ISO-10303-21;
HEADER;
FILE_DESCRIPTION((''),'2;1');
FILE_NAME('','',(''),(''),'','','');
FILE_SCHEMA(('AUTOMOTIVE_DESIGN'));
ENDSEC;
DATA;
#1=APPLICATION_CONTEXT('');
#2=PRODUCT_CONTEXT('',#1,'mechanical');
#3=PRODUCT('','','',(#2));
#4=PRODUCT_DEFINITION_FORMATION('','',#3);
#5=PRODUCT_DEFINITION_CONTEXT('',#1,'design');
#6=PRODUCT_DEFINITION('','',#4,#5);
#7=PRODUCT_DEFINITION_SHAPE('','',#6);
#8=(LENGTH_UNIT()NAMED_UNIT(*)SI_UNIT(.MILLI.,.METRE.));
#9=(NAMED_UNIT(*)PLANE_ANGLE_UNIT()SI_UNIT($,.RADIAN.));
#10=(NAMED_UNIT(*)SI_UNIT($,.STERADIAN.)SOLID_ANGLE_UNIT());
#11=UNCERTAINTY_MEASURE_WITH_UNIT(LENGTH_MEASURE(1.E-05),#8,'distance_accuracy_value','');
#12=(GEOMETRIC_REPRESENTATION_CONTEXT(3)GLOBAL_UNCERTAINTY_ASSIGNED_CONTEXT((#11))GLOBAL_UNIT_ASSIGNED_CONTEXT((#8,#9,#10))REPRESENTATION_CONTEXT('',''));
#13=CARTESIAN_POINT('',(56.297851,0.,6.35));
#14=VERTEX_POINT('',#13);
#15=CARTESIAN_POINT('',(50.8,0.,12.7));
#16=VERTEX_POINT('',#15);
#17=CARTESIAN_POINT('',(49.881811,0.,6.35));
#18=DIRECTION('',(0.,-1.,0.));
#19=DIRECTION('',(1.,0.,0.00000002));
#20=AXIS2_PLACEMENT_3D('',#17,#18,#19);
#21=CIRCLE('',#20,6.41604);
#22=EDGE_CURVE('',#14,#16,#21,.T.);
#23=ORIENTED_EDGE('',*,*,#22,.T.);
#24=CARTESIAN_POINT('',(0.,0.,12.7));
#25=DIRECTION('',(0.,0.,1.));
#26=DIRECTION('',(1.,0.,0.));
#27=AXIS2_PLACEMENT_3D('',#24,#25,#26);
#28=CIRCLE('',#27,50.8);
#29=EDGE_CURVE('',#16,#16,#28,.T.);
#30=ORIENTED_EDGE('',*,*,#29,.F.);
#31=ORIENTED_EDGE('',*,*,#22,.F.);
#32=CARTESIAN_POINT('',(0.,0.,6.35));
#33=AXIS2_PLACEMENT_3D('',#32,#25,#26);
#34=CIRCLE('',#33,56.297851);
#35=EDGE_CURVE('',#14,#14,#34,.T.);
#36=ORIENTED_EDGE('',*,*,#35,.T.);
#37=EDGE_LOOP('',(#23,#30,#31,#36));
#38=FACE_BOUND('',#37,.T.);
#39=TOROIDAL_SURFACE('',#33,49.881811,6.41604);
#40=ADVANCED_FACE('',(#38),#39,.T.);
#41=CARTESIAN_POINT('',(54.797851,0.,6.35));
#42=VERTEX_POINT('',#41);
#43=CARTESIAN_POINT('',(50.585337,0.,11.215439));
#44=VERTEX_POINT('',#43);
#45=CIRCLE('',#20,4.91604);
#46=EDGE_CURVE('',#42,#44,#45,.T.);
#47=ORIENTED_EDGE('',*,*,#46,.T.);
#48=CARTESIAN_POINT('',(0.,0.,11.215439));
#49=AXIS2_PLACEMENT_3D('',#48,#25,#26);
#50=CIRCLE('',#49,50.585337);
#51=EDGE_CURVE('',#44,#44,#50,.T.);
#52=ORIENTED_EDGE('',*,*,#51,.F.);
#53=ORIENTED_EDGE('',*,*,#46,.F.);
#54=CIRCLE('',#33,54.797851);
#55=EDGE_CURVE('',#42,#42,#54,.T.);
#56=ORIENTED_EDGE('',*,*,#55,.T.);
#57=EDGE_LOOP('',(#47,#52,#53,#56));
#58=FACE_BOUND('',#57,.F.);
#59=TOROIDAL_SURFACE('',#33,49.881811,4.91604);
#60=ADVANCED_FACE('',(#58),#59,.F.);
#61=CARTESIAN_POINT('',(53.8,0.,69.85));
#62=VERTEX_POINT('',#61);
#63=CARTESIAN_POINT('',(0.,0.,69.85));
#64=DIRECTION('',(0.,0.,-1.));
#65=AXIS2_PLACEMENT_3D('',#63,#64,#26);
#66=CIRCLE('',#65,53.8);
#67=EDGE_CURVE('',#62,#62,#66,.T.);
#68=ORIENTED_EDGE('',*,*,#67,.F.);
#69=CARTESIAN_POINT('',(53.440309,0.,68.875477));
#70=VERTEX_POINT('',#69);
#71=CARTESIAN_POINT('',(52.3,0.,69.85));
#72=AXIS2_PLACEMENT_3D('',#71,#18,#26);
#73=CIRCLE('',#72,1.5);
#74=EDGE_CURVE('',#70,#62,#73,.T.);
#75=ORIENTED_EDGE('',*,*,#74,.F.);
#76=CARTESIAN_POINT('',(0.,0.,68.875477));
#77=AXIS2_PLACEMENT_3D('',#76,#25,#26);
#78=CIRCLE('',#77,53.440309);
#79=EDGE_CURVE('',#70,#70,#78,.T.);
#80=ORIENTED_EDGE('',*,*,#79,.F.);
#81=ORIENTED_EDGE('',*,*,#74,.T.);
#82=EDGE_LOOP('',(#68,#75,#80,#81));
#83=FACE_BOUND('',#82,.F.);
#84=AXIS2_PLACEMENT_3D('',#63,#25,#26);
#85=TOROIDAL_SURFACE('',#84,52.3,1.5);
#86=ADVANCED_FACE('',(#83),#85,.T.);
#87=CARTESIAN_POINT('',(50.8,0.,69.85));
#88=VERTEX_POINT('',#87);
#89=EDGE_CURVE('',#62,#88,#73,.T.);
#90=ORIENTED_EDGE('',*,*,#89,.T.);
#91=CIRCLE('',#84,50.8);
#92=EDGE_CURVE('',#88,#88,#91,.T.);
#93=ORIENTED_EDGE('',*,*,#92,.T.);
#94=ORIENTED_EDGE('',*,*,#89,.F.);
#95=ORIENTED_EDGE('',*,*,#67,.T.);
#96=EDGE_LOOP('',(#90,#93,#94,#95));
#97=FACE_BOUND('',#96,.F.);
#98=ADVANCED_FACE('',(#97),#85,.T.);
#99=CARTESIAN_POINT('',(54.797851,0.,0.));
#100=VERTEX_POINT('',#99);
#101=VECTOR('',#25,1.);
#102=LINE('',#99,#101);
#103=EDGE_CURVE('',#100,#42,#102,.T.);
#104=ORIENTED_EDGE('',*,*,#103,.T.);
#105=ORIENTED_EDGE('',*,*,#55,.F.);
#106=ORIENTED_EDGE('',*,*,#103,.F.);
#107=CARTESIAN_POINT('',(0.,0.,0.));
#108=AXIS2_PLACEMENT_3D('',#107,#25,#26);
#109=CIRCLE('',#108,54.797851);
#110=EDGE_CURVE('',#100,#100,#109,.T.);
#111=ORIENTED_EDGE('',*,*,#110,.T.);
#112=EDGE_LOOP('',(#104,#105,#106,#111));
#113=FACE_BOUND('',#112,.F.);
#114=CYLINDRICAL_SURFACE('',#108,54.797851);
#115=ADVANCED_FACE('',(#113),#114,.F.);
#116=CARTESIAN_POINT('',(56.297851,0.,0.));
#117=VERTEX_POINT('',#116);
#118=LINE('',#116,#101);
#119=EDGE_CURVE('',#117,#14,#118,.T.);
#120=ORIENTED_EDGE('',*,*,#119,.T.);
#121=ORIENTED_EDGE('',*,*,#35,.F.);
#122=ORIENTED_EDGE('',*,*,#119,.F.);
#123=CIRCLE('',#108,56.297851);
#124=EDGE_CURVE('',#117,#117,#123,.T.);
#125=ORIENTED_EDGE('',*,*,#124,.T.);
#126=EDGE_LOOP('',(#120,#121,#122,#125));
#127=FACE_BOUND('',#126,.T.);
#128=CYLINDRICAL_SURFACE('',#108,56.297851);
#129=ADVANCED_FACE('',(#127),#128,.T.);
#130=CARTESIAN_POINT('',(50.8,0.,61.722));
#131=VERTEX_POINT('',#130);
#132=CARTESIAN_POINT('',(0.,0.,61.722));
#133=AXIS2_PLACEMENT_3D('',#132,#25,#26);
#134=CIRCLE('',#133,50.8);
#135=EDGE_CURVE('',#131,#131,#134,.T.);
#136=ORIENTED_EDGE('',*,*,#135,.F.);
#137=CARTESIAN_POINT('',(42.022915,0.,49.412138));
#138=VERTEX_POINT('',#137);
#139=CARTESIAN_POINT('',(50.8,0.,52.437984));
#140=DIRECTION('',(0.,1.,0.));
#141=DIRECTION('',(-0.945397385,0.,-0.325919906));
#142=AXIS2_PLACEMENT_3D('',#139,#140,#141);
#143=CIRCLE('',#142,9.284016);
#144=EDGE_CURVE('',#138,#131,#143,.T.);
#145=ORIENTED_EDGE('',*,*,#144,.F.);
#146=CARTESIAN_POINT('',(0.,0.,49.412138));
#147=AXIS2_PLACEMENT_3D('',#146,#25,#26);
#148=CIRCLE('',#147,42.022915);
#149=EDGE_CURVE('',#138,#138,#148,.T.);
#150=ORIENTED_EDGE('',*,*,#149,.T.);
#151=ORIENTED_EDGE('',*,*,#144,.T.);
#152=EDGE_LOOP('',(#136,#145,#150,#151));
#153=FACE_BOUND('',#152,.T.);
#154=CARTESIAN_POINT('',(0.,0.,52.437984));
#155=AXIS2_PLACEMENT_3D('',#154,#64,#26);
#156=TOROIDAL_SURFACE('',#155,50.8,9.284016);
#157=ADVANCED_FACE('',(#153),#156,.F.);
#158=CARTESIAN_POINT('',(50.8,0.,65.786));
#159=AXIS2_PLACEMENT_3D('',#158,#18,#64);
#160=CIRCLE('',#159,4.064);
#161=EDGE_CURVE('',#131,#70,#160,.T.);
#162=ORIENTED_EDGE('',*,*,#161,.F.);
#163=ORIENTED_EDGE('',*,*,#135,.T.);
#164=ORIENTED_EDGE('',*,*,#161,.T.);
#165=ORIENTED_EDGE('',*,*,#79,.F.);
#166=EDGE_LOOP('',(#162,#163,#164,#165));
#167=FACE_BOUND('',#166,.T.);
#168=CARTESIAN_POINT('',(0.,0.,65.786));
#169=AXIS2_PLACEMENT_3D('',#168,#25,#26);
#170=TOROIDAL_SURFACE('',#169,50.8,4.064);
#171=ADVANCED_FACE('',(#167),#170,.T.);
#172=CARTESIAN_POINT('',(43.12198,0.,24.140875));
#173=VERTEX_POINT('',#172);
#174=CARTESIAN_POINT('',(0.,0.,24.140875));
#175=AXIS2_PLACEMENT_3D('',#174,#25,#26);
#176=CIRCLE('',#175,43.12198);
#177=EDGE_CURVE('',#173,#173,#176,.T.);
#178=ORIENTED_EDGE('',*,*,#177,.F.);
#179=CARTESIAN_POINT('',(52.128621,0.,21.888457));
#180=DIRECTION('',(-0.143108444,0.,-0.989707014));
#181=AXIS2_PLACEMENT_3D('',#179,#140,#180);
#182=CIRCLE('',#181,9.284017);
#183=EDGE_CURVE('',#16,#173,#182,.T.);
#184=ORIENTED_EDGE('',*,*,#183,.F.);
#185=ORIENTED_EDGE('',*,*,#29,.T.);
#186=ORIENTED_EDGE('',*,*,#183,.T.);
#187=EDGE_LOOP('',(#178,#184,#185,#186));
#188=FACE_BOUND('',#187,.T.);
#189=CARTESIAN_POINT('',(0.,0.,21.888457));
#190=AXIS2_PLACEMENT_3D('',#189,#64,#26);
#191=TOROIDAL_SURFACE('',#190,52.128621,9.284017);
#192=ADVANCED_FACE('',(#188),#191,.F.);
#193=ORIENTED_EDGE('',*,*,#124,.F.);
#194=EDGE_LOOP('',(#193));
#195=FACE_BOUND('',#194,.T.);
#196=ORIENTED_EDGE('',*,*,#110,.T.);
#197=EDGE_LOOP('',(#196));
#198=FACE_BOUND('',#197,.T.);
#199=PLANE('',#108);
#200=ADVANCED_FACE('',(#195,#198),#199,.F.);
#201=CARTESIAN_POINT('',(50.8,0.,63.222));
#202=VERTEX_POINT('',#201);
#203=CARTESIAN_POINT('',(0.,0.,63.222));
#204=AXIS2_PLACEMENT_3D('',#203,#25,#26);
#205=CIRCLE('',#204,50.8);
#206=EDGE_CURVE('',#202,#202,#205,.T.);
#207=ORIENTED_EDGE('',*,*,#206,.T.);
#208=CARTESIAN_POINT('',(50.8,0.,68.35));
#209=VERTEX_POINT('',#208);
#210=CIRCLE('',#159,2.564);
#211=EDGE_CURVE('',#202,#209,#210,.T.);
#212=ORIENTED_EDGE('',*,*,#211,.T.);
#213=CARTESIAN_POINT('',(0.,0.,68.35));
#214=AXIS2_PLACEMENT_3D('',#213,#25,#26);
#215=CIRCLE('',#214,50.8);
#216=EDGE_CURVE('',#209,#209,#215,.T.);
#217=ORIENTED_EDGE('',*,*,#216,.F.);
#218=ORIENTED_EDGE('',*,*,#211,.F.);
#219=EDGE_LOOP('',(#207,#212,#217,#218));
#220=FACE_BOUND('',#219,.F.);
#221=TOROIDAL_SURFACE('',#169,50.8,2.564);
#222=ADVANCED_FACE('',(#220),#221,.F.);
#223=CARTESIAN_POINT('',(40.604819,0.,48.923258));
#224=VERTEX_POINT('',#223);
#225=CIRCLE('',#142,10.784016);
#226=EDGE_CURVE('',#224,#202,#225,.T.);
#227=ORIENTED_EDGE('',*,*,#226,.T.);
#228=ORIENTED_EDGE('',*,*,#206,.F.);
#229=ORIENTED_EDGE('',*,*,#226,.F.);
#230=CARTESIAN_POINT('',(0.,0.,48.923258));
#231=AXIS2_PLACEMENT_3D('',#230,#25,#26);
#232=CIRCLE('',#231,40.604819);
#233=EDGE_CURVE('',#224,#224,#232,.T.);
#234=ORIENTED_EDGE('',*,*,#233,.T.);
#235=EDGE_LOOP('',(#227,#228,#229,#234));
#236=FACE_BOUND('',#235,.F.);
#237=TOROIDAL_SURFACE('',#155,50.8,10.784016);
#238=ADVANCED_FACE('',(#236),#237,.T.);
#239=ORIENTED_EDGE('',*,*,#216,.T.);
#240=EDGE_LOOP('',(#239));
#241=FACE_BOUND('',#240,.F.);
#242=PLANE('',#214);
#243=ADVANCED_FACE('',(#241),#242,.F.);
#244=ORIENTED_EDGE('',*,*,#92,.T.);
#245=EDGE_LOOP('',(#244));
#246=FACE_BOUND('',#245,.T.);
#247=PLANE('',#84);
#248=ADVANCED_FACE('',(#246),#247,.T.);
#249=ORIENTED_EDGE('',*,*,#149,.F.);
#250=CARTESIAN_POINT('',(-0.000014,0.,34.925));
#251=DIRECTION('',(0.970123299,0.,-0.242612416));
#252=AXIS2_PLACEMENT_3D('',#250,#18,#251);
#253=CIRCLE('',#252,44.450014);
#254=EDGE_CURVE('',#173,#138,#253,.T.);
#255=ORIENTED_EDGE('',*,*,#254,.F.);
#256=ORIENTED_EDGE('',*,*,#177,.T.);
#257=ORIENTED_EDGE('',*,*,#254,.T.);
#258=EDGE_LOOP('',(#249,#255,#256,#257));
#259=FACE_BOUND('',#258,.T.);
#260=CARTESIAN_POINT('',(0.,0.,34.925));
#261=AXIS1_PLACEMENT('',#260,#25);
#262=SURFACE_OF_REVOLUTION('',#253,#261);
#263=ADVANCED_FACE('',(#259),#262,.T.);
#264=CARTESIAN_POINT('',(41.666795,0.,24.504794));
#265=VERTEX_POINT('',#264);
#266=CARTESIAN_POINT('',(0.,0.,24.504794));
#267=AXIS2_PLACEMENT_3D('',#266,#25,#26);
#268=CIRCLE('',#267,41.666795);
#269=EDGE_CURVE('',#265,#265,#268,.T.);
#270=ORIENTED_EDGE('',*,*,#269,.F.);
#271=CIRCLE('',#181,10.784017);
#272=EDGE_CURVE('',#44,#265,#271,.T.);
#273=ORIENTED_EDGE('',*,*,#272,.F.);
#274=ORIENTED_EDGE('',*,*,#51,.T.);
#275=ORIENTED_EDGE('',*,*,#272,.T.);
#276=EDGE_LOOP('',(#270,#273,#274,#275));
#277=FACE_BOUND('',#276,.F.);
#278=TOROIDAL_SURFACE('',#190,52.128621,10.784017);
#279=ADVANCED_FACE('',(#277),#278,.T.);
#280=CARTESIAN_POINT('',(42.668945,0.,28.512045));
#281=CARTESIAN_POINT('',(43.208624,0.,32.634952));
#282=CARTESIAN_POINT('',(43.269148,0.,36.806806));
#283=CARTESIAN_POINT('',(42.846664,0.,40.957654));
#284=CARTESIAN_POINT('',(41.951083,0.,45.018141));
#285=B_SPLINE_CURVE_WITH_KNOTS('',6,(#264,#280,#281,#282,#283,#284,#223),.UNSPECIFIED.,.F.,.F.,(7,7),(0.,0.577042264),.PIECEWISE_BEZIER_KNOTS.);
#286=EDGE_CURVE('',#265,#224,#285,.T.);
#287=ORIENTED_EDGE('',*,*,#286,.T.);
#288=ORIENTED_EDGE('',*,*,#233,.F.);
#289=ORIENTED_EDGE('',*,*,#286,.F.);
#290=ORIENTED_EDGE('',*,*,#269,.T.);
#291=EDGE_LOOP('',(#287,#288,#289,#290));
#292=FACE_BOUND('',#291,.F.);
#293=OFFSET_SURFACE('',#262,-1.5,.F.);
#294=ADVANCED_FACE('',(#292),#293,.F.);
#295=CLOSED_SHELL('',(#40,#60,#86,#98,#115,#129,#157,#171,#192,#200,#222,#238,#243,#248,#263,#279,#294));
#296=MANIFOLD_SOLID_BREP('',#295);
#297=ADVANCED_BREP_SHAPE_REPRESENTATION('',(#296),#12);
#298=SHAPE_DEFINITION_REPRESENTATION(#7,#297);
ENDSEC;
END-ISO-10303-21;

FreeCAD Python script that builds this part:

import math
import FreeCAD as App
import Part
import Sketcher

V = App.Vector
Q = App.Units.Quantity


def faces_at(feature, points):
    """Names of the faces that lie closest to the given points."""
    faces = feature.Shape.Faces
    near = lambda p: min(range(len(faces)), key=lambda i: faces[i].distToShape(Part.Vertex(*p))[0])
    return sorted({f"Face{near(p) + 1}" for p in points})

doc = App.newDocument("Part")
body = doc.addObject("PartDesign::Body", "Body")

# Sketch on XZ plane
sketch1 = body.newObject("Sketcher::SketchObject", "Sketch")
sketch1.AttachmentSupport = (doc.getObject("XZ_Plane"), [""])
sketch1.MapMode = "FlatFace"
sketch1.addGeometry([
    Part.LineSegment(V(0, 69.85, 0), V(0, 0, 0)),  # 0
    Part.LineSegment(V(0, 0, 0), V(56.297851, 0, 0)),  # 1
    Part.LineSegment(V(56.297851, 0, 0), V(56.297851, 6.35, 0)),  # 2
    Part.ArcOfCircle(Part.Circle(V(49.881811, 6.35, 0), V(0, 0, 1), 6.41604), math.radians(0.000001), math.radians(81.772243)),  # 3
    Part.ArcOfCircle(Part.Circle(V(52.128621, 21.888457, 0), V(0, 0, 1), 9.284017), math.radians(165.959219), math.radians(261.772241)),  # 4
    Part.ArcOfCircle(Part.Circle(V(-0.000014, 34.925, 0), V(0, 0, 1), 44.450014), math.radians(-14.040779), math.radians(19.021308)),  # 5
    Part.ArcOfCircle(Part.Circle(V(50.8, 52.437984, 0), V(0, 0, 1), 9.284016), math.radians(89.999998), math.radians(199.021316)),  # 6
    Part.ArcOfCircle(Part.Circle(V(50.8, 65.786, 0), V(0, 0, 1), 4.064), math.radians(-90), math.radians(90)),  # 7
    Part.LineSegment(V(50.8, 69.85, 0), V(0, 69.85, 0)),  # 8
], False)
sketch1.addConstraint([
    Sketcher.Constraint("Coincident", 0, 2, 1, 1),
    Sketcher.Constraint("Coincident", 1, 2, 2, 1),
    Sketcher.Constraint("Coincident", 2, 2, 3, 1),
    Sketcher.Constraint("Coincident", 3, 2, 4, 2),
    Sketcher.Constraint("Coincident", 4, 1, 5, 1),
    Sketcher.Constraint("Coincident", 5, 2, 6, 2),
    Sketcher.Constraint("Coincident", 6, 1, 7, 1),
    Sketcher.Constraint("Coincident", 7, 2, 8, 1),
    Sketcher.Constraint("Coincident", 8, 2, 0, 1),
    Sketcher.Constraint("Vertical", 0),
    Sketcher.Constraint("Horizontal", 1),
    Sketcher.Constraint("Vertical", 2),
    Sketcher.Constraint("Horizontal", 8),
    Sketcher.Constraint("Coincident", 0, 2, -1, 1),
    Sketcher.Constraint("DistanceX", 8, 2, 8, 1, Q("2 in")),
    Sketcher.Constraint("Radius", 7, Q("0.16 in")),
    Sketcher.Constraint("DistanceX", -1, 1, 6, 3, Q("2 in")),
    Sketcher.Constraint("DistanceX", -1, 1, 7, 3, Q("2 in")),
    Sketcher.Constraint("DistanceX", -1, 1, 3, 2, Q("2 in")),
    Sketcher.Constraint("DistanceX", -1, 1, 6, 1, Q("2 in")),
    Sketcher.Constraint("DistanceY", 0, 2, 0, 1, Q("2.75 in")),
    Sketcher.Constraint("DistanceY", 2, 1, 2, 2, Q("0.25 in")),
    Sketcher.Constraint("DistanceY", -1, 1, 3, 2, Q("0.5 in")),
    Sketcher.Constraint("Radius", 3, Q("0.2526 in")),
    Sketcher.Constraint("DistanceY", -1, 1, 3, 3, Q("0.25 in")),
    Sketcher.Constraint("DistanceY", -1, 1, 5, 3, Q("1.375 in")),
    Sketcher.Constraint("Radius", 4, Q("9.284017 mm")),
    Sketcher.Constraint("Radius", 5, Q("44.450014 mm")),
    Sketcher.Constraint("Radius", 6, Q("9.284016 mm")),
    Sketcher.Constraint("DistanceX", -1, 1, 4, 1, Q("43.12198 mm")),
    Sketcher.Constraint("DistanceY", 4, 3, 5, 2, Q("27.523681 mm")),
])
revolution = body.newObject("PartDesign::Revolution", "Revolution")
revolution.Profile = sketch1
revolution.ReferenceAxis = (sketch1, ["V_Axis"])
revolution.Angle = 360
doc.recompute()

thickness = body.newObject("PartDesign::Thickness", "Thickness")
thickness.Base = (revolution, faces_at(revolution, [(0, 0, 0)]))
thickness.Value = 1.5
thickness.Reversed = True
thickness.Join = "Arc"

# Sketch on XZ plane
sketch2 = body.newObject("Sketcher::SketchObject", "Sketch001")
sketch2.AttachmentSupport = (doc.getObject("XZ_Plane"), [""])
sketch2.MapMode = "FlatFace"
sketch2.addGeometry(Part.Circle(V(52.3, 69.8, 0), V(0, 0, 1), 1.5), False)
sketch2.addConstraint([
    Sketcher.Constraint("Diameter", 0, Q("3 mm")),
    Sketcher.Constraint("DistanceY", -1, 1, 0, 3, Q("2.75 in")),
    Sketcher.Constraint("DistanceX", -1, 1, 0, 3, Q("52.3 mm")),
])
revolution2 = body.newObject("PartDesign::Revolution", "Revolution001")
revolution2.Profile = sketch2
revolution2.ReferenceAxis = (sketch2, ["V_Axis"])
revolution2.Angle = 360

doc.recompute()
